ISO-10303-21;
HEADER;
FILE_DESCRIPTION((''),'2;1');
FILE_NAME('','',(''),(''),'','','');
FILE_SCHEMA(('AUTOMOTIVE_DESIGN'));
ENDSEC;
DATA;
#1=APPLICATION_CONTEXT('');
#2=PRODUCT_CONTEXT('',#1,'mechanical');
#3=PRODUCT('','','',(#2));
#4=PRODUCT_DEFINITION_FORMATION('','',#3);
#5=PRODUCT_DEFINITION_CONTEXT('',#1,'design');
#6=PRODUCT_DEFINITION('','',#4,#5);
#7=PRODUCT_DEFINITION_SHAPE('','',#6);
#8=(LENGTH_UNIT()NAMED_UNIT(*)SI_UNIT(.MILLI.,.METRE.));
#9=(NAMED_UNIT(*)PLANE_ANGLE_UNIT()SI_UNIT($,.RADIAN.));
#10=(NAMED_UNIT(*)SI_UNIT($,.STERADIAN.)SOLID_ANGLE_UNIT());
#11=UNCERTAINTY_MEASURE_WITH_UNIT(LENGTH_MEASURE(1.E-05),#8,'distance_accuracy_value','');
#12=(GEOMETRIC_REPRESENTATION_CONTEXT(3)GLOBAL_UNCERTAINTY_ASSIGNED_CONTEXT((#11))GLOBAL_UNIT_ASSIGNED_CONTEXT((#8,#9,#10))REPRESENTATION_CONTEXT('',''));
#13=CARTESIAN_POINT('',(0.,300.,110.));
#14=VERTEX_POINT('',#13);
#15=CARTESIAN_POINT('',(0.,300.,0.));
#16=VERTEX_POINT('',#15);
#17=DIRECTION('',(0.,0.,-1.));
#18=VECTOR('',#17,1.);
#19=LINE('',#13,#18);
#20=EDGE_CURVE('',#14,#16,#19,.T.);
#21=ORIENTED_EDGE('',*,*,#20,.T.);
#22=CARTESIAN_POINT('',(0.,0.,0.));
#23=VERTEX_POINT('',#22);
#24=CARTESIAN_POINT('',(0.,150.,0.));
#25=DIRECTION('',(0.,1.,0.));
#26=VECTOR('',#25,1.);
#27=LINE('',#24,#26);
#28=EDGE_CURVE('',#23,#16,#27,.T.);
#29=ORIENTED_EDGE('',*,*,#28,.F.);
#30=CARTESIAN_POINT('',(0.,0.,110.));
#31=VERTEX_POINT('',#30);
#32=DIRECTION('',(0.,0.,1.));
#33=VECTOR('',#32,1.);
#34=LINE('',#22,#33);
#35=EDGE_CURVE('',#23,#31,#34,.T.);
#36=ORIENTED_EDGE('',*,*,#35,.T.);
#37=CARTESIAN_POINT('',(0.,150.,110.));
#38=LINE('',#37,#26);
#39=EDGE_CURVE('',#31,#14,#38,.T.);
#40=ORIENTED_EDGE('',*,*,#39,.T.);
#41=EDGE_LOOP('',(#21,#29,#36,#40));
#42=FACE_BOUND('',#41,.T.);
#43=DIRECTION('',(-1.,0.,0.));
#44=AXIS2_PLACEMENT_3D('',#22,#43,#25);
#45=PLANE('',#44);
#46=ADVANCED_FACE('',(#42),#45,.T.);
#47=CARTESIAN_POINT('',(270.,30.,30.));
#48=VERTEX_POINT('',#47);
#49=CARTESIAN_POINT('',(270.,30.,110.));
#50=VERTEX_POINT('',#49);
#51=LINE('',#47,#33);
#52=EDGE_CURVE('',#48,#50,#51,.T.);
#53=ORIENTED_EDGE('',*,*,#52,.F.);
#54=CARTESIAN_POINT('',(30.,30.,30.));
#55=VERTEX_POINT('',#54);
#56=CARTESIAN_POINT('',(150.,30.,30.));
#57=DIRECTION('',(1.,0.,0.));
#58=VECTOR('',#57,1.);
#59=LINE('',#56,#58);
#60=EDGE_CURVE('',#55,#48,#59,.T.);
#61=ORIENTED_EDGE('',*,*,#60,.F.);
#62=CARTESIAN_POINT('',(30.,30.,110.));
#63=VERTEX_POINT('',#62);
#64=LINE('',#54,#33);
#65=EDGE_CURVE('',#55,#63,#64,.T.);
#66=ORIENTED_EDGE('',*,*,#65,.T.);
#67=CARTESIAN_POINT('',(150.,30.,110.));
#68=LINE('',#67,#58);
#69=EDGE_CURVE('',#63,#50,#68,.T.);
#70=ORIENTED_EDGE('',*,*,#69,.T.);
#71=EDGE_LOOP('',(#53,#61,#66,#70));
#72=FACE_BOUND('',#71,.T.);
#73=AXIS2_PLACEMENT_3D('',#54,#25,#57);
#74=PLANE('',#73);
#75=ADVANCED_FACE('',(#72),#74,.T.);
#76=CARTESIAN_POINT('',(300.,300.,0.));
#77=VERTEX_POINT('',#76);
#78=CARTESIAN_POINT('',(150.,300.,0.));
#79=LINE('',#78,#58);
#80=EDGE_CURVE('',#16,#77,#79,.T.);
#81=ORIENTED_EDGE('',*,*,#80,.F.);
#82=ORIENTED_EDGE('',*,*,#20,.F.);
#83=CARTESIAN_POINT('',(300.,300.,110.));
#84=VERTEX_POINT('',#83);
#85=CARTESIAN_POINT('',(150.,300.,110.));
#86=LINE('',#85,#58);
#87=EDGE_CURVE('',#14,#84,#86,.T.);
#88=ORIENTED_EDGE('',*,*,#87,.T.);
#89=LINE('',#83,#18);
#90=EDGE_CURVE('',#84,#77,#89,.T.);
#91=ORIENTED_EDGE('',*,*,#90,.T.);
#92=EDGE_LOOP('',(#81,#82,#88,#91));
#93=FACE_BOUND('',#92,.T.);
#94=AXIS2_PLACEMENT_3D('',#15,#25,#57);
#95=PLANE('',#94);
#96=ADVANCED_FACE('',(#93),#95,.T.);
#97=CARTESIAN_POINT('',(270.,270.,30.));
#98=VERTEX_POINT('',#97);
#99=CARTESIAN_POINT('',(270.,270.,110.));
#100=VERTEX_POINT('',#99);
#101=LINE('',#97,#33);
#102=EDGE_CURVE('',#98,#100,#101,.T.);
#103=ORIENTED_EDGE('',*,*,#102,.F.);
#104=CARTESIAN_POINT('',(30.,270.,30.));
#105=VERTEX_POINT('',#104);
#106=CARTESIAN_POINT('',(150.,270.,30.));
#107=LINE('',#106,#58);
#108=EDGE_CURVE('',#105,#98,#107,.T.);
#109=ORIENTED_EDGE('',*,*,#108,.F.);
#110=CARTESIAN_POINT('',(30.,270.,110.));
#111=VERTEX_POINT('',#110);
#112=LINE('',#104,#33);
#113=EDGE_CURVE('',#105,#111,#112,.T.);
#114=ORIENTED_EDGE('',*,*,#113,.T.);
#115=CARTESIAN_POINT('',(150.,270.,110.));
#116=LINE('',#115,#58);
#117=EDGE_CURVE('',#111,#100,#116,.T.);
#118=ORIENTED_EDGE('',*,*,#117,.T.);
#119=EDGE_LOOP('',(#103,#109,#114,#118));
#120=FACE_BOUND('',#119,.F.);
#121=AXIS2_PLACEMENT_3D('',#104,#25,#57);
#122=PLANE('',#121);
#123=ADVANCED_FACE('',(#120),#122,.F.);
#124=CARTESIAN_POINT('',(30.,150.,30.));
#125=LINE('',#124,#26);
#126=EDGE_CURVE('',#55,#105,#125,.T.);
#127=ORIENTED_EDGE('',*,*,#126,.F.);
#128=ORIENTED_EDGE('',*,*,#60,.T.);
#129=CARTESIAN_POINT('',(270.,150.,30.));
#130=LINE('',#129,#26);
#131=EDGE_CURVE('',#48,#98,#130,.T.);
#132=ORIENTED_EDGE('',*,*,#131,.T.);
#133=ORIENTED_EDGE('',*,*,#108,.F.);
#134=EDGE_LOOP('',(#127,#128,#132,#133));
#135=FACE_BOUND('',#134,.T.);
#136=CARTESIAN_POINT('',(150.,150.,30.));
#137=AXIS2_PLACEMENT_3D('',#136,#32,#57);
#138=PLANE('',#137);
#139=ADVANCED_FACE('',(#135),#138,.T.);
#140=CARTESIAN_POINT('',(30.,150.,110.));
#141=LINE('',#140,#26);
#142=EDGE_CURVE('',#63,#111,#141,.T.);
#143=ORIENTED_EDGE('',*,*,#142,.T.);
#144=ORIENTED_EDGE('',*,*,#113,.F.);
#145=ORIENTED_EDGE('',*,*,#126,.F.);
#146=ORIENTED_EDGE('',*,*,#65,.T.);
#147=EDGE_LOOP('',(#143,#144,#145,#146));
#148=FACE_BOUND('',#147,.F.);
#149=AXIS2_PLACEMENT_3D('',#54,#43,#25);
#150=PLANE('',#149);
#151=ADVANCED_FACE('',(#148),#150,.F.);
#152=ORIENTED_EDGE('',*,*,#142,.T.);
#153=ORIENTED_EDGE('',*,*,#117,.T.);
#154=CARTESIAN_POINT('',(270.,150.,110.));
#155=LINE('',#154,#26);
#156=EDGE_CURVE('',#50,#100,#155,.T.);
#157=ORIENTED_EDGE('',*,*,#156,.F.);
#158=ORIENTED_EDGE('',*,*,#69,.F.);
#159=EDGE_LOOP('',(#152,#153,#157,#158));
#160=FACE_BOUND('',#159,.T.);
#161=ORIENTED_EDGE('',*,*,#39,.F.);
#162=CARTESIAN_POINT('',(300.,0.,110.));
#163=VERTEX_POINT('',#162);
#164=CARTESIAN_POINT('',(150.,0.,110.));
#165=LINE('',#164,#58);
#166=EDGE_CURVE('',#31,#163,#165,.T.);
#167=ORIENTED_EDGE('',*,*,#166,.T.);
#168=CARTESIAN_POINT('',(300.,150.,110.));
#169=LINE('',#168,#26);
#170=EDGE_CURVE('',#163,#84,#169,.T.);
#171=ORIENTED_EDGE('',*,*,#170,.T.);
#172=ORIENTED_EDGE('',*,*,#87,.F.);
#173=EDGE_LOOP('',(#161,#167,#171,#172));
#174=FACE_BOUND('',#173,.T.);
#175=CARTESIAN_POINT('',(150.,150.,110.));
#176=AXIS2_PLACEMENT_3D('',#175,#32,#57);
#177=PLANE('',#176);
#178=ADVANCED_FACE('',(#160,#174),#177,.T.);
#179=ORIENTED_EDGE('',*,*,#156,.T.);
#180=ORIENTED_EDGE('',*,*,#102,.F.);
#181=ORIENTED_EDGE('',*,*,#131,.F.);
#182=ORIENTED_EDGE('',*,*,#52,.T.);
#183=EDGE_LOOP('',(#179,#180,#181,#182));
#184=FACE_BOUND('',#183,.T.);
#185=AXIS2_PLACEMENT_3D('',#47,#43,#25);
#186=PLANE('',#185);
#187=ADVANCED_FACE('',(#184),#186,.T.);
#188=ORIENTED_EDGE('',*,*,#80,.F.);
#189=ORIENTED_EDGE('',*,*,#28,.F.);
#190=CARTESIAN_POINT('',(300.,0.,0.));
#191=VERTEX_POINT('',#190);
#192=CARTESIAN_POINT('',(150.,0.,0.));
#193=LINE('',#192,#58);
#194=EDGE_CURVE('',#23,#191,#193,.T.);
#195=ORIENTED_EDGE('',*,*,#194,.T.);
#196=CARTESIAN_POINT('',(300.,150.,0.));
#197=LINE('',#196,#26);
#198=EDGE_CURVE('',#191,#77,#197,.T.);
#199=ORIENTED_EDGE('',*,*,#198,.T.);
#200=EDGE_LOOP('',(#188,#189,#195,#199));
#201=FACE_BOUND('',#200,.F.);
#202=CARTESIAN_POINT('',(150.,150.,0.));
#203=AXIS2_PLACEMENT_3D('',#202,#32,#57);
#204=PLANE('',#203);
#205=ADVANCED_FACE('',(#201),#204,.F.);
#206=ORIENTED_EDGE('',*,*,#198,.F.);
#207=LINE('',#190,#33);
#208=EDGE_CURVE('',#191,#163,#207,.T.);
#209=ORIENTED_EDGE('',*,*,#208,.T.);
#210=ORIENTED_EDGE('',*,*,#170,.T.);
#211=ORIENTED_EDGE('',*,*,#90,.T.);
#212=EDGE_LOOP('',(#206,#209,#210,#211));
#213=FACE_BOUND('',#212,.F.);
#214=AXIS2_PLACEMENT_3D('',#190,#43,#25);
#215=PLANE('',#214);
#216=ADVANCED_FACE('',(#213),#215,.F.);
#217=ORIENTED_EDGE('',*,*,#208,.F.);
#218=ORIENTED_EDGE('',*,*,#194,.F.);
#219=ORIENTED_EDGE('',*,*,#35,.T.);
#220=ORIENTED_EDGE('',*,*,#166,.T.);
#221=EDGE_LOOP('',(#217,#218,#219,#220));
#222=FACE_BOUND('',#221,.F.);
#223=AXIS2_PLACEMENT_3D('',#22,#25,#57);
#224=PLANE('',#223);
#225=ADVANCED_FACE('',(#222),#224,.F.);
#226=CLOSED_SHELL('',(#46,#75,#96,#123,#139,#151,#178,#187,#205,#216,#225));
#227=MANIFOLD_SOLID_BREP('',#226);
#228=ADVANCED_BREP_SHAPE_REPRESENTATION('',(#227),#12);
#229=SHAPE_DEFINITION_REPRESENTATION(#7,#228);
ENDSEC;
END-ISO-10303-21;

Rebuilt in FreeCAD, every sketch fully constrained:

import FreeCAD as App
import Part
import Sketcher
Q = App.Units.Quantity


def add_polygon(sketch, points):
    """Adds a closed chain of lines whose ends are joined by coincident constraints."""
    first, n = sketch.GeometryCount, len(points)
    for a, b in zip(points, points[1:] + points[:1]):
        sketch.addGeometry(Part.LineSegment(App.Vector(*a, 0), App.Vector(*b, 0)), False)
    for i in range(n):
        sketch.addConstraint(Sketcher.Constraint("Coincident", first + i, 2, first + (i + 1) % n, 1))

doc = App.newDocument("Part")
params = doc.addObject("Spreadsheet::Sheet", "Params")
for row, (alias, value) in enumerate([
    ("sketch1_width", "300 mm"),
    ("pad1_length", "30 mm"),
    ("sketch2_width", "300 mm"),
    ("sketch2_width2", "240 mm"),
    ("pad2_length", "80 mm"),
], start=1):
    params.set(f"A{row}", alias)
    params.set(f"B{row}", "=" + value)
    params.setAlias(f"B{row}", alias)

body = doc.addObject("PartDesign::Body", "Body")

# Sketch on XY plane
sketch1 = doc.addObject("Sketcher::SketchObject", "Sketch")
body.addObject(sketch1)
sketch1.AttachmentSupport = (doc.XY_Plane, [""])
sketch1.MapMode = "FlatFace"
add_polygon(sketch1, [(0, 300), (0, 0), (300, 0), (300, 300)])  # lines 0-3
sketch1.addConstraint([
    Sketcher.Constraint("Vertical", 0),
    Sketcher.Constraint("Horizontal", 1),
    Sketcher.Constraint("Vertical", 2),
    Sketcher.Constraint("Horizontal", 3),
    Sketcher.Constraint("Coincident", 0, 2, -1, 1),
    Sketcher.Constraint("Equal", 3, 0),
    Sketcher.Constraint("DistanceX", 1, 1, 1, 2, Q("300 mm")),
])
sketch1.setExpression("Constraints[10]", "Params.sketch1_width")
pad1 = doc.addObject("PartDesign::Pad", "Pad")
body.addObject(pad1)
pad1.Profile = sketch1
pad1.setExpression("Length", "Params.pad1_length")
body2 = doc.addObject("PartDesign::Body", "Body001")

# Sketch on XY plane
sketch2 = doc.addObject("Sketcher::SketchObject", "Sketch001")
body2.addObject(sketch2)
sketch2.AttachmentSupport = (doc.getObject("XY_Plane001"), [""])
sketch2.MapMode = "FlatFace"
sketch2.AttachmentOffset = App.Placement(App.Vector(0, 0, 30), App.Rotation())
add_polygon(sketch2, [(0, 300), (0, 0), (300, 0), (300, 300)])  # lines 0-3
add_polygon(sketch2, [(270, 30), (30, 30), (30, 270), (270, 270)])  # lines 4-7
sketch2.addConstraint([
    Sketcher.Constraint("Vertical", 0),
    Sketcher.Constraint("Horizontal", 1),
    Sketcher.Constraint("Vertical", 2),
    Sketcher.Constraint("Horizontal", 3),
    Sketcher.Constraint("Horizontal", 4),
    Sketcher.Constraint("Vertical", 5),
    Sketcher.Constraint("Horizontal", 6),
    Sketcher.Constraint("Vertical", 7),
    Sketcher.Constraint("Coincident", 0, 2, -1, 1),
    Sketcher.Constraint("Equal", 3, 0),
    Sketcher.Constraint("Equal", 6, 5),
    Sketcher.Constraint("DistanceX", 1, 1, 1, 2, Q("300 mm")),
    Sketcher.Constraint("DistanceX", 4, 2, 4, 1, Q("240 mm")),
    Sketcher.Constraint("DistanceX", -1, 1, 4, 2, Q("30 mm")),
    Sketcher.Constraint("DistanceY", -1, 1, 4, 2, Q("30 mm")),
])
sketch2.setExpression("Constraints[19]", "Params.sketch2_width")
sketch2.setExpression("Constraints[20]", "Params.sketch2_width2")
pad2 = doc.addObject("PartDesign::Pad", "Pad001")
body2.addObject(pad2)
pad2.Profile = sketch2
pad2.setExpression("Length", "Params.pad2_length")
doc.recompute()

boolean = doc.addObject("PartDesign::Boolean", "Boolean")
body2.addObject(boolean)
boolean.Type = "Fuse"
boolean.addObjects([body])

doc.recompute()
